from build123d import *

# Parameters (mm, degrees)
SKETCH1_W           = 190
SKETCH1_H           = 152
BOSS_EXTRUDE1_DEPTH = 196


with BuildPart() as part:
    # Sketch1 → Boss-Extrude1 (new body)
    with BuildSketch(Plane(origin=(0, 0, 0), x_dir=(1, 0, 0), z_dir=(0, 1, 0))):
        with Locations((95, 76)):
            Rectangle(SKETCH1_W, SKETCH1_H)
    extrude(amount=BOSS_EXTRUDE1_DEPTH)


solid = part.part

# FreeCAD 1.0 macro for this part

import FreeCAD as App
import Part
import Sketcher
from FreeCAD import Vector

doc = App.newDocument("Part")
body = doc.addObject("PartDesign::Body", "Body")

# Sketch on XZ plane
sketch1 = doc.addObject("Sketcher::SketchObject", "Sketch")
body.addObject(sketch1)
sketch1.AttachmentSupport = (doc.XZ_Plane, [""])
sketch1.MapMode = "FlatFace"
sketch1.addGeometry([
    Part.LineSegment(Vector(0, -152, 0), Vector(0, 0, 0)),
    Part.LineSegment(Vector(0, 0, 0), Vector(190, 0, 0)),
    Part.LineSegment(Vector(190, 0, 0), Vector(190, -152, 0)),
    Part.LineSegment(Vector(190, -152, 0), Vector(0, -152, 0)),
], False)
sketch1.addConstraint([
    Sketcher.Constraint("Coincident", 0, 2, 1, 1),
    Sketcher.Constraint("Coincident", 1, 2, 2, 1),
    Sketcher.Constraint("Coincident", 2, 2, 3, 1),
    Sketcher.Constraint("Coincident", 3, 2, 0, 1),
    Sketcher.Constraint("Vertical", 0),
    Sketcher.Constraint("Horizontal", 1),
    Sketcher.Constraint("Vertical", 2),
    Sketcher.Constraint("Horizontal", 3),
    Sketcher.Constraint("Coincident", 0, 2, -1, 1),
    Sketcher.Constraint("DistanceX", 1, 1, 1, 2, 190.0),
    Sketcher.Constraint("DistanceY", 0, 1, 0, 2, 152.0),
])
pad1 = doc.addObject("PartDesign::Pad", "Pad")
body.addObject(pad1)
pad1.Profile = sketch1
pad1.Length = 196
pad1.Reversed = True

doc.recompute()
